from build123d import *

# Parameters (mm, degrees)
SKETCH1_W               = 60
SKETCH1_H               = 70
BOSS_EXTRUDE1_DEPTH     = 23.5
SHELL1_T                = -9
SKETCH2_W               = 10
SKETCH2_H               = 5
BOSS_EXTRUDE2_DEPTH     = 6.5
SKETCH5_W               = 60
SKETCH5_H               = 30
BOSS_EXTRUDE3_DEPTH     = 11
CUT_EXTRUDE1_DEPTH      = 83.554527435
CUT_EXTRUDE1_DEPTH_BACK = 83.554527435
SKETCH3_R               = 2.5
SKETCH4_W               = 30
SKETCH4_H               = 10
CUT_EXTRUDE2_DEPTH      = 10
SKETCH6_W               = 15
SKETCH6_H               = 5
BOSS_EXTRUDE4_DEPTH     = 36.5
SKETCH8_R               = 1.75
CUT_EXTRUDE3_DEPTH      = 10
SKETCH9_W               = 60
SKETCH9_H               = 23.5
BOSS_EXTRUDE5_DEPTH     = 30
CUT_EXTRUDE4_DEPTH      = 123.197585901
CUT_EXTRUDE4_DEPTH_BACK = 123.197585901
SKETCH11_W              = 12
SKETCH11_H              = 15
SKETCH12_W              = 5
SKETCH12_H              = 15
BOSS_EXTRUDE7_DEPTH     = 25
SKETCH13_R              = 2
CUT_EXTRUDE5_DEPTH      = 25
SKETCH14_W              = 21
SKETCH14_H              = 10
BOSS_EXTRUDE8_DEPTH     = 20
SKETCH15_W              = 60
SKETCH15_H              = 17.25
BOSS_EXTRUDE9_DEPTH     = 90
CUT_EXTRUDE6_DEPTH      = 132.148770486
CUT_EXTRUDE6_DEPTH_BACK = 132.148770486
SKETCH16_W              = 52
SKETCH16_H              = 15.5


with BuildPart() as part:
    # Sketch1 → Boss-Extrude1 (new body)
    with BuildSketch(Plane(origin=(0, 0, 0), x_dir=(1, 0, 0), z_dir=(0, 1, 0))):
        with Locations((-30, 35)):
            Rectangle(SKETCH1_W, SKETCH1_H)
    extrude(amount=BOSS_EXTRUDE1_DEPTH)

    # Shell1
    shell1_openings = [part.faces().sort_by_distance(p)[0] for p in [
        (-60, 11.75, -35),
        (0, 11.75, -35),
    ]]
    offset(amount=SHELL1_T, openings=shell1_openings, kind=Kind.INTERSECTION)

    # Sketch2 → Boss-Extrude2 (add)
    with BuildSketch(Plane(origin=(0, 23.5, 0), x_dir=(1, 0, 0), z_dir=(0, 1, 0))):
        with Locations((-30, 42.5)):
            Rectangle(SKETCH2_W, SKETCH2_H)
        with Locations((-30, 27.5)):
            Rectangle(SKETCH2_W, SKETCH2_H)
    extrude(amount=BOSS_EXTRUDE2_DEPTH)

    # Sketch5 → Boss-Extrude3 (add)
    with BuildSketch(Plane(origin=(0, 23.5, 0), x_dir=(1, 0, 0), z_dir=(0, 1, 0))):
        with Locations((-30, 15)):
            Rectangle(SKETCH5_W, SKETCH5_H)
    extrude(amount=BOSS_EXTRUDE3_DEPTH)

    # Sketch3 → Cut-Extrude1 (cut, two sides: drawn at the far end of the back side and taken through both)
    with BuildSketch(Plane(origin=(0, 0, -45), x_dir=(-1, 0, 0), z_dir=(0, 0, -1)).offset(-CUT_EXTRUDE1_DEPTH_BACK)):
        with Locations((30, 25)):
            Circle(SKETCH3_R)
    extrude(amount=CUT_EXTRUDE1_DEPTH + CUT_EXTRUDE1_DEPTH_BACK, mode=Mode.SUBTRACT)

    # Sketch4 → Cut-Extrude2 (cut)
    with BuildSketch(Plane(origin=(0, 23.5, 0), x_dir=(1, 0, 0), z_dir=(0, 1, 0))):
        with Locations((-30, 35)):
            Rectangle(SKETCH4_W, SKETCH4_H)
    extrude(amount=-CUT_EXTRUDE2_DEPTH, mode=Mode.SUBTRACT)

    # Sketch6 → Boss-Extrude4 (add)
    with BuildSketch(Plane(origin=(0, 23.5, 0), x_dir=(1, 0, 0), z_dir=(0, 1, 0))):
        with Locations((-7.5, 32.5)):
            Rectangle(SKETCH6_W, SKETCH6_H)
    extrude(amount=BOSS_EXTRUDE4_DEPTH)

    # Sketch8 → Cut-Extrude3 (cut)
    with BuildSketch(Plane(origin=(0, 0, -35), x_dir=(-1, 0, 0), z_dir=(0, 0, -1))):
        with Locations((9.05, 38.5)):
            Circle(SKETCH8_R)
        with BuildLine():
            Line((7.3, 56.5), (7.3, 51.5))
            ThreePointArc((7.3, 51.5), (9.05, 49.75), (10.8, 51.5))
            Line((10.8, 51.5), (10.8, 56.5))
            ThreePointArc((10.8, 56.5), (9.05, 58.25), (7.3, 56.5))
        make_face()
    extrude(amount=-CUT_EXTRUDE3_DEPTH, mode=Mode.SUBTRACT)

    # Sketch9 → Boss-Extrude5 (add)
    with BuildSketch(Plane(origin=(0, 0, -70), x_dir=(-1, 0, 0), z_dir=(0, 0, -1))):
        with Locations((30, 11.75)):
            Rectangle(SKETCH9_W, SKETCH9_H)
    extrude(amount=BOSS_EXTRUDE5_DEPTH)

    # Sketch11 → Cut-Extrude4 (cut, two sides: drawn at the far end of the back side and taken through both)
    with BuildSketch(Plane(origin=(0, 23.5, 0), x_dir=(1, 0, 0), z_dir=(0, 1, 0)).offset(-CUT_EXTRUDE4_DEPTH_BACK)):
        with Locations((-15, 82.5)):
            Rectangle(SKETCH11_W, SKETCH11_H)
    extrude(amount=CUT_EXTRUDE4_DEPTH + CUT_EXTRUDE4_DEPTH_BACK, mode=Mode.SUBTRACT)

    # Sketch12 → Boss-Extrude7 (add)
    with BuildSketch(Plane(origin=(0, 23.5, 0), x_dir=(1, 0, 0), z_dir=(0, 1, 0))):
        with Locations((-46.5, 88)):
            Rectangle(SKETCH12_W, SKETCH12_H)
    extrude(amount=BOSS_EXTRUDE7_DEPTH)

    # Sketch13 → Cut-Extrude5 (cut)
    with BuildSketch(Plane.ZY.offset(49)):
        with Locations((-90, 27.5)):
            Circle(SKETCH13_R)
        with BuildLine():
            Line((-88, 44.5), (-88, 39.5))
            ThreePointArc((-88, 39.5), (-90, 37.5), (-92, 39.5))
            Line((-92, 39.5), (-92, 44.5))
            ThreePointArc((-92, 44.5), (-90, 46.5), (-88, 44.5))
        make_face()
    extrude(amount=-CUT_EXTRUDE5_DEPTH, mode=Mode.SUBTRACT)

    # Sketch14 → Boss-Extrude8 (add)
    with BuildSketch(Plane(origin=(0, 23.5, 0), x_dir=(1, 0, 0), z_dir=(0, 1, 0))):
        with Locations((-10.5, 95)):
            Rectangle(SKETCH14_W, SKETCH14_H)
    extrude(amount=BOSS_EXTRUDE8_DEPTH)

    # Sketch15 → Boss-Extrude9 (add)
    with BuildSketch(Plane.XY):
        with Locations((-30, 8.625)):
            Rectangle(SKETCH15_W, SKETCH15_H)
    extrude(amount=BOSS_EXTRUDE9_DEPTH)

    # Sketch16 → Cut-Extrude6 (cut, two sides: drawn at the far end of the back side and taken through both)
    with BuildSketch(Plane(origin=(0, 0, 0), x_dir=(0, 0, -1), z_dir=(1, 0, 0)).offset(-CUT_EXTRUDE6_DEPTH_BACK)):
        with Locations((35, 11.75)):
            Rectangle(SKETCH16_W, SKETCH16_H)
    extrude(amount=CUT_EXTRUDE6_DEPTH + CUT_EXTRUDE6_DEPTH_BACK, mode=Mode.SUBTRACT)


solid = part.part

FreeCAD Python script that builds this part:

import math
import FreeCAD as App
import Part
import Sketcher
from FreeCAD import Vector


def faces_at(feature, points):
    """Names of the faces that lie closest to the given points."""
    faces = feature.Shape.Faces
    near = lambda p: min(range(len(faces)), key=lambda i: faces[i].distToShape(Part.Vertex(*p))[0])
    return sorted({f"Face{near(p) + 1}" for p in points})


def add_polygon(sketch, points):
    """Adds a closed chain of lines whose ends are joined by coincident constraints."""
    first, n = sketch.GeometryCount, len(points)
    for a, b in zip(points, points[1:] + points[:1]):
        sketch.addGeometry(Part.LineSegment(App.Vector(*a, 0), App.Vector(*b, 0)), False)
    for i in range(n):
        sketch.addConstraint(Sketcher.Constraint("Coincident", first + i, 2, first + (i + 1) % n, 1))

doc = App.newDocument("Part")
body = doc.addObject("PartDesign::Body", "Body")

# Sketch on XZ plane
sketch1 = body.newObject("Sketcher::SketchObject", "Sketch")
sketch1.AttachmentSupport = (doc.getObject("XZ_Plane"), [""])
sketch1.MapMode = "FlatFace"
add_polygon(sketch1, [(-60, -70), (-60, 0), (0, 0), (0, -70)])  # lines 0-3
sketch1.addConstraint([
    Sketcher.Constraint("Vertical", 0),
    Sketcher.Constraint("Horizontal", 1),
    Sketcher.Constraint("Vertical", 2),
    Sketcher.Constraint("Horizontal", 3),
    Sketcher.Constraint("Coincident", 1, 2, -1, 1),
    Sketcher.Constraint("DistanceX", 1, 1, 1, 2, 60.0),
    Sketcher.Constraint("DistanceY", 0, 1, 0, 2, 70.0),
])
pad1 = body.newObject("PartDesign::Pad", "Pad")
pad1.Profile = sketch1
pad1.Length = 23.5
pad1.Reversed = True
doc.recompute()

thickness = body.newObject("PartDesign::Thickness", "Thickness")
thickness.Base = (pad1, faces_at(pad1, [(-60, 11.75, -35), (0, 11.75, -35)]))
thickness.Value = 9
thickness.Reversed = True
thickness.Join = "Intersection"

# Sketch on XZ plane
sketch2 = body.newObject("Sketcher::SketchObject", "Sketch001")
sketch2.AttachmentSupport = (doc.getObject("XZ_Plane"), [""])
sketch2.MapMode = "FlatFace"
sketch2.AttachmentOffset = App.Placement(Vector(0, 0, -23.5), App.Rotation())
add_polygon(sketch2, [(-35, -45), (-35, -40), (-25, -40), (-25, -45)])  # lines 0-3
add_polygon(sketch2, [(-35, -30), (-35, -25), (-25, -25), (-25, -30)])  # lines 4-7
sketch2.addConstraint([
    Sketcher.Constraint("Vertical", 0),
    Sketcher.Constraint("Horizontal", 1),
    Sketcher.Constraint("Vertical", 2),
    Sketcher.Constraint("Horizontal", 3),
    Sketcher.Constraint("Vertical", 4),
    Sketcher.Constraint("Horizontal", 5),
    Sketcher.Constraint("Vertical", 6),
    Sketcher.Constraint("Horizontal", 7),
    Sketcher.Constraint("Vertical", 3, 2, 4, 2),
    Sketcher.Constraint("Vertical", 2, 2, 5, 2),
    Sketcher.Constraint("Equal", 2, 4),
    Sketcher.Constraint("DistanceX", 1, 1, 1, 2, 10.0),
    Sketcher.Constraint("DistanceY", 0, 1, 0, 2, 5.0),
    Sketcher.Constraint("DistanceX", 0, 2, -1, 1, 35.0),
    Sketcher.Constraint("DistanceY", 0, 2, -1, 1, 40.0),
    Sketcher.Constraint("DistanceY", 4, 2, -1, 1, 25.0),
])
pad2 = body.newObject("PartDesign::Pad", "Pad001")
pad2.Profile = sketch2
pad2.Length = 6.5
pad2.Reversed = True

# Sketch on XZ plane
sketch3 = body.newObject("Sketcher::SketchObject", "Sketch002")
sketch3.AttachmentSupport = (doc.getObject("XZ_Plane"), [""])
sketch3.MapMode = "FlatFace"
sketch3.AttachmentOffset = App.Placement(Vector(0, 0, -23.5), App.Rotation())
add_polygon(sketch3, [(-60, -30), (-60, 0), (0, 0), (0, -30)])  # lines 0-3
sketch3.addConstraint([
    Sketcher.Constraint("Vertical", 0),
    Sketcher.Constraint("Horizontal", 1),
    Sketcher.Constraint("Vertical", 2),
    Sketcher.Constraint("Horizontal", 3),
    Sketcher.Constraint("Coincident", 1, 2, -1, 1),
    Sketcher.Constraint("DistanceX", 1, 1, 1, 2, 60.0),
    Sketcher.Constraint("DistanceY", 0, 1, 0, 2, 30.0),
])
pad3 = body.newObject("PartDesign::Pad", "Pad002")
pad3.Profile = sketch3
pad3.Length = 11
pad3.Reversed = True

# Sketch on XY plane
sketch4 = body.newObject("Sketcher::SketchObject", "Sketch003")
sketch4.AttachmentSupport = (doc.getObject("XY_Plane"), [""])
sketch4.MapMode = "FlatFace"
sketch4.AttachmentOffset = App.Placement(Vector(0, 0, -45), App.Rotation())
sketch4.addGeometry(Part.Circle(Vector(-30, 25, 0), Vector(0, 0, 1), 2.5), False)
sketch4.addConstraint([
    Sketcher.Constraint("Diameter", 0, 5.0),
    Sketcher.Constraint("DistanceX", 0, 3, -1, 1, 30.0),
    Sketcher.Constraint("DistanceY", -1, 1, 0, 3, 25.0),
])
pocket1 = body.newObject("PartDesign::Pocket", "Pocket")
pocket1.Profile = sketch4
pocket1.Type = "ThroughAll"
pocket1.Midplane = True

# Sketch on XZ plane
sketch5 = body.newObject("Sketcher::SketchObject", "Sketch004")
sketch5.AttachmentSupport = (doc.getObject("XZ_Plane"), [""])
sketch5.MapMode = "FlatFace"
sketch5.AttachmentOffset = App.Placement(Vector(0, 0, -23.5), App.Rotation())
add_polygon(sketch5, [(-45, -40), (-45, -30), (-15, -30), (-15, -40)])  # lines 0-3
sketch5.addConstraint([
    Sketcher.Constraint("Vertical", 0),
    Sketcher.Constraint("Horizontal", 1),
    Sketcher.Constraint("Vertical", 2),
    Sketcher.Constraint("Horizontal", 3),
    Sketcher.Constraint("DistanceX", 1, 1, 1, 2, 30.0),
    Sketcher.Constraint("DistanceY", 0, 1, 0, 2, 10.0),
    Sketcher.Constraint("DistanceX", 0, 2, -1, 1, 45.0),
    Sketcher.Constraint("DistanceY", 0, 2, -1, 1, 30.0),
])
pocket2 = body.newObject("PartDesign::Pocket", "Pocket001")
pocket2.Profile = sketch5
pocket2.Length = 10
pocket2.Reversed = True

# Sketch on XZ plane
sketch6 = body.newObject("Sketcher::SketchObject", "Sketch005")
sketch6.AttachmentSupport = (doc.getObject("XZ_Plane"), [""])
sketch6.MapMode = "FlatFace"
sketch6.AttachmentOffset = App.Placement(Vector(0, 0, -23.5), App.Rotation())
add_polygon(sketch6, [(-15, -35), (-15, -30), (0, -30), (0, -35)])  # lines 0-3
sketch6.addConstraint([
    Sketcher.Constraint("Vertical", 0),
    Sketcher.Constraint("Horizontal", 1),
    Sketcher.Constraint("Vertical", 2),
    Sketcher.Constraint("Horizontal", 3),
    Sketcher.Constraint("PointOnObject", 1, 2, -2),
    Sketcher.Constraint("DistanceX", 1, 1, 1, 2, 15.0),
    Sketcher.Constraint("DistanceY", 0, 1, 0, 2, 5.0),
    Sketcher.Constraint("DistanceY", 0, 2, -1, 1, 30.0),
])
pad4 = body.newObject("PartDesign::Pad", "Pad003")
pad4.Profile = sketch6
pad4.Length = 36.5
pad4.Reversed = True

# Sketch on XY plane
sketch7 = body.newObject("Sketcher::SketchObject", "Sketch006")
sketch7.AttachmentSupport = (doc.getObject("XY_Plane"), [""])
sketch7.MapMode = "FlatFace"
sketch7.AttachmentOffset = App.Placement(Vector(0, 0, -35), App.Rotation())
sketch7.addGeometry([
    Part.Circle(Vector(-9.05, 38.5, 0), Vector(0, 0, 1), 1.75),  # 0
    Part.LineSegment(Vector(-7.3, 56.5, 0), Vector(-7.3, 51.5, 0)),  # 1
    Part.ArcOfCircle(Part.Circle(Vector(-9.05, 51.5, 0), Vector(0, 0, 1), 1.75), math.radians(180), math.radians(360)),  # 2
    Part.LineSegment(Vector(-10.8, 51.5, 0), Vector(-10.8, 56.5, 0)),  # 3
    Part.ArcOfCircle(Part.Circle(Vector(-9.05, 56.5, 0), Vector(0, 0, 1), 1.75), math.radians(0), math.radians(180)),  # 4
], False)
sketch7.addConstraint([
    Sketcher.Constraint("Tangent", 1, 2, 2, 2),
    Sketcher.Constraint("Tangent", 2, 1, 3, 1),
    Sketcher.Constraint("Tangent", 3, 2, 4, 2),
    Sketcher.Constraint("Tangent", 4, 1, 1, 1),
    Sketcher.Constraint("Vertical", 1),
    Sketcher.Constraint("Vertical", 3),
    Sketcher.Constraint("Equal", 0, 2),
    Sketcher.Constraint("Vertical", 0, 3, 2, 3),
    Sketcher.Constraint("Diameter", 0, 3.5),
    Sketcher.Constraint("DistanceY", 1, 2, 1, 1, 5.0),
    Sketcher.Constraint("DistanceY", 0, 3, 2, 3, 13.0),
    Sketcher.Constraint("DistanceY", -1, 1, 0, 3, 38.5),
    Sketcher.Constraint("DistanceX", 1, 2, -1, 1, 7.3),
])
pocket3 = body.newObject("PartDesign::Pocket", "Pocket002")
pocket3.Profile = sketch7
pocket3.Length = 10
pocket3.Reversed = True

# Sketch on XY plane
sketch8 = body.newObject("Sketcher::SketchObject", "Sketch007")
sketch8.AttachmentSupport = (doc.getObject("XY_Plane"), [""])
sketch8.MapMode = "FlatFace"
sketch8.AttachmentOffset = App.Placement(Vector(0, 0, -70), App.Rotation())
add_polygon(sketch8, [(0, 23.5), (0, 0), (-60, 0), (-60, 23.5)])  # lines 0-3
sketch8.addConstraint([
    Sketcher.Constraint("Vertical", 0),
    Sketcher.Constraint("Horizontal", 1),
    Sketcher.Constraint("Vertical", 2),
    Sketcher.Constraint("Horizontal", 3),
    Sketcher.Constraint("Coincident", 0, 2, -1, 1),
    Sketcher.Constraint("DistanceX", 1, 2, 1, 1, 60.0),
    Sketcher.Constraint("DistanceY", 0, 2, 0, 1, 23.5),
])
pad5 = body.newObject("PartDesign::Pad", "Pad004")
pad5.Profile = sketch8
pad5.Length = 30
pad5.Reversed = True

# Sketch on XZ plane
sketch9 = body.newObject("Sketcher::SketchObject", "Sketch008")
sketch9.AttachmentSupport = (doc.getObject("XZ_Plane"), [""])
sketch9.MapMode = "FlatFace"
sketch9.AttachmentOffset = App.Placement(Vector(0, 0, -23.5), App.Rotation())
add_polygon(sketch9, [(-21, -90), (-21, -75), (-9, -75), (-9, -90)])  # lines 0-3
sketch9.addConstraint([
    Sketcher.Constraint("Vertical", 0),
    Sketcher.Constraint("Horizontal", 1),
    Sketcher.Constraint("Vertical", 2),
    Sketcher.Constraint("Horizontal", 3),
    Sketcher.Constraint("DistanceX", 1, 1, 1, 2, 12.0),
    Sketcher.Constraint("DistanceY", 0, 1, 0, 2, 15.0),
    Sketcher.Constraint("DistanceX", 0, 2, -1, 1, 21.0),
    Sketcher.Constraint("DistanceY", 0, 2, -1, 1, 75.0),
])
pocket4 = body.newObject("PartDesign::Pocket", "Pocket003")
pocket4.Profile = sketch9
pocket4.Type = "ThroughAll"
pocket4.Midplane = True

# Sketch on XZ plane
sketch10 = body.newObject("Sketcher::SketchObject", "Sketch009")
sketch10.AttachmentSupport = (doc.getObject("XZ_Plane"), [""])
sketch10.MapMode = "FlatFace"
sketch10.AttachmentOffset = App.Placement(Vector(0, 0, -23.5), App.Rotation())
add_polygon(sketch10, [(-49, -95.5), (-49, -80.5), (-44, -80.5), (-44, -95.5)])  # lines 0-3
sketch10.addConstraint([
    Sketcher.Constraint("Vertical", 0),
    Sketcher.Constraint("Horizontal", 1),
    Sketcher.Constraint("Vertical", 2),
    Sketcher.Constraint("Horizontal", 3),
    Sketcher.Constraint("DistanceX", 1, 1, 1, 2, 5.0),
    Sketcher.Constraint("DistanceY", 0, 1, 0, 2, 15.0),
    Sketcher.Constraint("DistanceX", 0, 2, -1, 1, 49.0),
    Sketcher.Constraint("DistanceY", 0, 2, -1, 1, 80.5),
])
pad6 = body.newObject("PartDesign::Pad", "Pad005")
pad6.Profile = sketch10
pad6.Length = 25
pad6.Reversed = True

# Sketch on YZ plane
sketch11 = body.newObject("Sketcher::SketchObject", "Sketch010")
sketch11.AttachmentSupport = (doc.getObject("YZ_Plane"), [""])
sketch11.MapMode = "FlatFace"
sketch11.AttachmentOffset = App.Placement(Vector(0, 0, -49), App.Rotation())
sketch11.addGeometry([
    Part.Circle(Vector(27.5, -90, 0), Vector(0, 0, 1), 2),  # 0
    Part.LineSegment(Vector(39.5, -88, 0), Vector(44.5, -88, 0)),  # 1
    Part.ArcOfCircle(Part.Circle(Vector(44.5, -90, 0), Vector(0, 0, 1), 2), math.radians(-90), math.radians(90)),  # 2
    Part.LineSegment(Vector(44.5, -92, 0), Vector(39.5, -92, 0)),  # 3
    Part.ArcOfCircle(Part.Circle(Vector(39.5, -90, 0), Vector(0, 0, 1), 2), math.radians(90), math.radians(270)),  # 4
], False)
sketch11.addConstraint([
    Sketcher.Constraint("Tangent", 1, 2, 2, 2),
    Sketcher.Constraint("Tangent", 2, 1, 3, 1),
    Sketcher.Constraint("Tangent", 3, 2, 4, 2),
    Sketcher.Constraint("Tangent", 4, 1, 1, 1),
    Sketcher.Constraint("Horizontal", 1),
    Sketcher.Constraint("Horizontal", 3),
    Sketcher.Constraint("Equal", 0, 2),
    Sketcher.Constraint("Horizontal", 0, 3, 2, 3),
    Sketcher.Constraint("Diameter", 0, 4.0),
    Sketcher.Constraint("DistanceX", 1, 1, 1, 2, 5.0),
    Sketcher.Constraint("DistanceY", 0, 3, -1, 1, 90.0),
    Sketcher.Constraint("DistanceX", 0, 3, 2, 3, 17.0),
    Sketcher.Constraint("DistanceX", -1, 1, 0, 3, 27.5),
])
pocket5 = body.newObject("PartDesign::Pocket", "Pocket004")
pocket5.Profile = sketch11
pocket5.Length = 25
pocket5.Reversed = True

# Sketch on XZ plane
sketch12 = body.newObject("Sketcher::SketchObject", "Sketch011")
sketch12.AttachmentSupport = (doc.getObject("XZ_Plane"), [""])
sketch12.MapMode = "FlatFace"
sketch12.AttachmentOffset = App.Placement(Vector(0, 0, -23.5), App.Rotation())
add_polygon(sketch12, [(-21, -100), (-21, -90), (0, -90), (0, -100)])  # lines 0-3
sketch12.addConstraint([
    Sketcher.Constraint("Vertical", 0),
    Sketcher.Constraint("Horizontal", 1),
    Sketcher.Constraint("Vertical", 2),
    Sketcher.Constraint("Horizontal", 3),
    Sketcher.Constraint("PointOnObject", 1, 2, -2),
    Sketcher.Constraint("DistanceX", 1, 1, 1, 2, 21.0),
    Sketcher.Constraint("DistanceY", 0, 1, 0, 2, 10.0),
    Sketcher.Constraint("DistanceY", 0, 2, -1, 1, 90.0),
])
pad7 = body.newObject("PartDesign::Pad", "Pad006")
pad7.Profile = sketch12
pad7.Length = 20
pad7.Reversed = True

# Sketch on XY plane
sketch13 = body.newObject("Sketcher::SketchObject", "Sketch012")
sketch13.AttachmentSupport = (doc.getObject("XY_Plane"), [""])
sketch13.MapMode = "FlatFace"
add_polygon(sketch13, [(-60, 17.25), (-60, 0), (0, 0), (0, 17.25)])  # lines 0-3
sketch13.addConstraint([
    Sketcher.Constraint("Vertical", 0),
    Sketcher.Constraint("Horizontal", 1),
    Sketcher.Constraint("Vertical", 2),
    Sketcher.Constraint("Horizontal", 3),
    Sketcher.Constraint("Coincident", 1, 2, -1, 1),
    Sketcher.Constraint("DistanceX", 1, 1, 1, 2, 60.0),
    Sketcher.Constraint("DistanceY", 0, 2, 0, 1, 17.25),
])
pad8 = body.newObject("PartDesign::Pad", "Pad007")
pad8.Profile = sketch13
pad8.Length = 90

# Sketch on YZ plane
sketch14 = body.newObject("Sketcher::SketchObject", "Sketch013")
sketch14.AttachmentSupport = (doc.getObject("YZ_Plane"), [""])
sketch14.MapMode = "FlatFace"
add_polygon(sketch14, [(19.5, -9), (4, -9), (4, -61), (19.5, -61)])  # lines 0-3
sketch14.addConstraint([
    Sketcher.Constraint("Horizontal", 0),
    Sketcher.Constraint("Vertical", 1),
    Sketcher.Constraint("Horizontal", 2),
    Sketcher.Constraint("Vertical", 3),
    Sketcher.Constraint("DistanceY", 1, 2, 1, 1, 52.0),
    Sketcher.Constraint("DistanceX", 0, 2, 0, 1, 15.5),
    Sketcher.Constraint("DistanceX", -1, 1, 0, 2, 4.0),
    Sketcher.Constraint("DistanceY", 0, 2, -1, 1, 9.0),
])
pocket6 = body.newObject("PartDesign::Pocket", "Pocket005")
pocket6.Profile = sketch14
pocket6.Type = "ThroughAll"
pocket6.Midplane = True

doc.recompute()
